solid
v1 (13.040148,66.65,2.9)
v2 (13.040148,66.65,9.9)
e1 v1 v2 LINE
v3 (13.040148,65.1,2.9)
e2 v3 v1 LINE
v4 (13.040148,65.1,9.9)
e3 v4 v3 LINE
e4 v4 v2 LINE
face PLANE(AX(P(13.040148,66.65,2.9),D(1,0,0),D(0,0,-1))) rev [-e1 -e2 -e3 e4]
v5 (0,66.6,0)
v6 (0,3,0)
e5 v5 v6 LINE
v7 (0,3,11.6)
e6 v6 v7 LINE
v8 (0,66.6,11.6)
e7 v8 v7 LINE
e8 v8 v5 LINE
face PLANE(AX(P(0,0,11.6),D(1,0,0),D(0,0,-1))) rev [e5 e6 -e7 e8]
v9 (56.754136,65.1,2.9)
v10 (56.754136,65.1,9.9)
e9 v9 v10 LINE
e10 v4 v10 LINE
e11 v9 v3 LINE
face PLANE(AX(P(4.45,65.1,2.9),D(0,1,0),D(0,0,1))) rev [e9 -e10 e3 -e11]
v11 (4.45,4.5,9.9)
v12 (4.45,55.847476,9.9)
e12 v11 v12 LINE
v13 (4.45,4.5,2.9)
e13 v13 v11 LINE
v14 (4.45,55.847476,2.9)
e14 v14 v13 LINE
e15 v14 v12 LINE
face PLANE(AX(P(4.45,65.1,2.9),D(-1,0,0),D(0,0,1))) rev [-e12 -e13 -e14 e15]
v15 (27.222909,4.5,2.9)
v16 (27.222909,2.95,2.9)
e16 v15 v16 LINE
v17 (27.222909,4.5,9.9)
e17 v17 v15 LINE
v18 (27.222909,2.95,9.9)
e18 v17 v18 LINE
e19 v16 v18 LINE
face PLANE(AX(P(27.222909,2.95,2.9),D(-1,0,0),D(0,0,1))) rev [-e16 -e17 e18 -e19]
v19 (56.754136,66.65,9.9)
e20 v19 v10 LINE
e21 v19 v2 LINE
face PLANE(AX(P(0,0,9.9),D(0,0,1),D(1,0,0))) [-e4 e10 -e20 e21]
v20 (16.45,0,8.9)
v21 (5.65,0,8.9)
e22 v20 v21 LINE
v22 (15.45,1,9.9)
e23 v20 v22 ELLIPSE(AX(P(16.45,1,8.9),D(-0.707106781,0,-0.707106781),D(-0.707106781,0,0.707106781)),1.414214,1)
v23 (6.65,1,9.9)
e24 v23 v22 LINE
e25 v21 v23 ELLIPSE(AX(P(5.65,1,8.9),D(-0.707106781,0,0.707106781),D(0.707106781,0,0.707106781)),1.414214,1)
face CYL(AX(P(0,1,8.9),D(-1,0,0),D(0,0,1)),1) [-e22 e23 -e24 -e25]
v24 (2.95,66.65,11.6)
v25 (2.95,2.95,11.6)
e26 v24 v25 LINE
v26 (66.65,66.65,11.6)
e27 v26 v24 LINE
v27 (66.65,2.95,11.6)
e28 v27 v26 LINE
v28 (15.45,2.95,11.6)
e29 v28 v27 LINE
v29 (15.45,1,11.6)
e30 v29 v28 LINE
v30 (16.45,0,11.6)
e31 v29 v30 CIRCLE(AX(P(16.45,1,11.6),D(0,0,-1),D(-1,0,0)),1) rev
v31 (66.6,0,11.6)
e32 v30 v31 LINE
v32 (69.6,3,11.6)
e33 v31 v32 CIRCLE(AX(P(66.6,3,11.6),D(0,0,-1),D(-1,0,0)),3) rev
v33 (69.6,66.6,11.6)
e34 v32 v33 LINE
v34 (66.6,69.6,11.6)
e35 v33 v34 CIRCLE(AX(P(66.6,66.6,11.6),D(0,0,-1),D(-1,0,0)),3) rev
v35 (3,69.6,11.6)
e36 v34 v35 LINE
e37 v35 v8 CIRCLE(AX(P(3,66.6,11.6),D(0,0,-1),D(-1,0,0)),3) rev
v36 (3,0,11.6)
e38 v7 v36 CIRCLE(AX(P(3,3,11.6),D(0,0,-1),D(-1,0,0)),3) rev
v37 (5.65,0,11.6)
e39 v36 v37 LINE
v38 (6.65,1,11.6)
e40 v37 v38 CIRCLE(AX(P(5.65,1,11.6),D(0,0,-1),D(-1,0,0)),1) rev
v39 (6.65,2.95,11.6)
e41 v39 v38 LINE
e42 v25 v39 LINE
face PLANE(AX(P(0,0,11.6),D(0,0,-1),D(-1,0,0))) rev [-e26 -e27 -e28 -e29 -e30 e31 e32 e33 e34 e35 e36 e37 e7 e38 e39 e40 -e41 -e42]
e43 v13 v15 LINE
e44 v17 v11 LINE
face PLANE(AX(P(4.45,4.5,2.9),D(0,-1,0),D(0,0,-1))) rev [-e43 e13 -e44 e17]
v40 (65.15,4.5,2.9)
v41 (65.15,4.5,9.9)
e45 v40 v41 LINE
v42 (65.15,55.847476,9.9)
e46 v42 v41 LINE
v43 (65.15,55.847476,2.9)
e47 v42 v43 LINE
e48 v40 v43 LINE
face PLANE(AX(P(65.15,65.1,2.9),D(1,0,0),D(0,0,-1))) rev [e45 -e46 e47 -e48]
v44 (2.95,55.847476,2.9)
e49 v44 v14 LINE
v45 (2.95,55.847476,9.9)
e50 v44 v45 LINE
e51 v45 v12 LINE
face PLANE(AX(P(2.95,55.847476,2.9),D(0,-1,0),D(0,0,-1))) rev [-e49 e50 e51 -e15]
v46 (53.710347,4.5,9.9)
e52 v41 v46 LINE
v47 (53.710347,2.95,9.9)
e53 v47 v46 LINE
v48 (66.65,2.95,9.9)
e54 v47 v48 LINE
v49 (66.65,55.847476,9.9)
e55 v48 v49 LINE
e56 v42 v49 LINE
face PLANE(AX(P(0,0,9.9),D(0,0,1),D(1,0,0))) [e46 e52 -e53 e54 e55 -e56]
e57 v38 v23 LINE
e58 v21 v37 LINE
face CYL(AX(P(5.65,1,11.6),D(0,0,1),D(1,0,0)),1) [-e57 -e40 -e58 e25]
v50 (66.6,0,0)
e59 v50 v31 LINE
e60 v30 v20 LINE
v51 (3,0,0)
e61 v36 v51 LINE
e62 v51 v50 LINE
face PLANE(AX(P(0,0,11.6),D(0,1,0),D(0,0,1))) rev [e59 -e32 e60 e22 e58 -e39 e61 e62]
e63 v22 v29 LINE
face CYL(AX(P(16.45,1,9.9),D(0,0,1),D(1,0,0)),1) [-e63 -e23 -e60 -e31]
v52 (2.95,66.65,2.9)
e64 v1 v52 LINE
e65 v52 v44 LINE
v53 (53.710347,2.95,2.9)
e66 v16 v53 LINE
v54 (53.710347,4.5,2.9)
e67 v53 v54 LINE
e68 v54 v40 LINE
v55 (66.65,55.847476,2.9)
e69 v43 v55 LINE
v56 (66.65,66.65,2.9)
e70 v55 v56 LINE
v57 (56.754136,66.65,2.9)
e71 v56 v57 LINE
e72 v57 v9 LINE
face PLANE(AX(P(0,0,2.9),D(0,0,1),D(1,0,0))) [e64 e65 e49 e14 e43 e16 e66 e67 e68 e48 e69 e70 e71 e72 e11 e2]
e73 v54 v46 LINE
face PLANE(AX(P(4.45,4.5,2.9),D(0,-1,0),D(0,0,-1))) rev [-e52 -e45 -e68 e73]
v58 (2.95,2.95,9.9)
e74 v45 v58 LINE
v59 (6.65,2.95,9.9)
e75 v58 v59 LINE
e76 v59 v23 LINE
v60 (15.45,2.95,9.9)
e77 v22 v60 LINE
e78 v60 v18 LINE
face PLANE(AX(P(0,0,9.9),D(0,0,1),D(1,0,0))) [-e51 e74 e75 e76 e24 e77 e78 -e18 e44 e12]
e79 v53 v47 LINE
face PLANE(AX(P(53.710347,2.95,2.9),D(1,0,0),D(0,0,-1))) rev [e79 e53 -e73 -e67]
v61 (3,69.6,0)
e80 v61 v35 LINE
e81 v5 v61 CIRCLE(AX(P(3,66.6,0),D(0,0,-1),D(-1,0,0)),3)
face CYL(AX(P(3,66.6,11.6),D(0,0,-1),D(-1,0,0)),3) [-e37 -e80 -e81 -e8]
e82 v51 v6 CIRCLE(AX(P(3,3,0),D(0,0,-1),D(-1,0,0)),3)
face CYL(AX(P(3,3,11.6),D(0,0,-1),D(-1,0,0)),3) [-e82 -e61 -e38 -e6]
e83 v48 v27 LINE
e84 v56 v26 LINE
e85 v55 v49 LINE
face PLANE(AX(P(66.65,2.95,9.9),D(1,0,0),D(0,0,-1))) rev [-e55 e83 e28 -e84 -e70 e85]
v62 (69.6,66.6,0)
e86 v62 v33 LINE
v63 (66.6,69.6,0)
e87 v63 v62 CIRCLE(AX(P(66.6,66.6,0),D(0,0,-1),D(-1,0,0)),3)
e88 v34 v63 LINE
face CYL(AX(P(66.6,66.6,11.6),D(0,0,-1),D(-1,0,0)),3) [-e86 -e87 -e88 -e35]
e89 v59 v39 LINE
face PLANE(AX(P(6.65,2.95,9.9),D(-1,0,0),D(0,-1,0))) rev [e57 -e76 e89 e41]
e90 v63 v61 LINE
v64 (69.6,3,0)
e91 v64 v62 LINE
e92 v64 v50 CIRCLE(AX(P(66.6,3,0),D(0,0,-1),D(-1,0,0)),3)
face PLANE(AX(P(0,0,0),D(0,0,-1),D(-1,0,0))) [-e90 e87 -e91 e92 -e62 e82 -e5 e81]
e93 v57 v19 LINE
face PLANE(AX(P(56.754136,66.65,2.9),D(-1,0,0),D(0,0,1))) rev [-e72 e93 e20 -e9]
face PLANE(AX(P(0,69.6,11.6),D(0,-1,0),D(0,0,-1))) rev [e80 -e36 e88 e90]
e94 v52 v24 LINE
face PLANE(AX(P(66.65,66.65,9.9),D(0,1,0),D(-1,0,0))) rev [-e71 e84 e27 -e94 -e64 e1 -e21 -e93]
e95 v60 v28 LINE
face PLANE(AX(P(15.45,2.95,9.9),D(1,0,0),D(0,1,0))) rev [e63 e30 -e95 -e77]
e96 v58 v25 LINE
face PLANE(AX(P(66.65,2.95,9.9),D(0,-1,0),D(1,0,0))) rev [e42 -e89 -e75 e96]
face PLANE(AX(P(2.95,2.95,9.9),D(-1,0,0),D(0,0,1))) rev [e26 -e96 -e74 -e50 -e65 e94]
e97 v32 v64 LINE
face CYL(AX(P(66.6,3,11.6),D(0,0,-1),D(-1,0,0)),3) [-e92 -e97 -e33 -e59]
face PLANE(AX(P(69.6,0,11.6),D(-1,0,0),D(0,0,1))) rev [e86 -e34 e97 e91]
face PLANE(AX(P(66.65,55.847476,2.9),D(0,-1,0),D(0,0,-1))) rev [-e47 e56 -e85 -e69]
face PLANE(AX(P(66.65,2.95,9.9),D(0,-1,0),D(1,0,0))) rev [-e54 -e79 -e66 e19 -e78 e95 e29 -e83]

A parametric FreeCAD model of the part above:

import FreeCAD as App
import Part
import Sketcher


def edges_at(feature, points):
    """Names of the edges that pass closest to the given points."""
    edges = feature.Shape.Edges
    near = lambda p: min(range(len(edges)), key=lambda i: edges[i].distToShape(Part.Vertex(*p))[0])
    return sorted({f"Edge{near(p) + 1}" for p in points})


def add_polygon(sketch, points):
    """Adds a closed chain of lines whose ends are joined by coincident constraints."""
    first, n = sketch.GeometryCount, len(points)
    for a, b in zip(points, points[1:] + points[:1]):
        sketch.addGeometry(Part.LineSegment(App.Vector(*a, 0), App.Vector(*b, 0)), False)
    for i in range(n):
        sketch.addConstraint(Sketcher.Constraint("Coincident", first + i, 2, first + (i + 1) % n, 1))

doc = App.newDocument("Part")
body = doc.addObject("PartDesign::Body", "Body")

# Sketch on XY plane
sketch1 = body.newObject("Sketcher::SketchObject", "Sketch")
sketch1.AttachmentSupport = (doc.getObject("XY_Plane"), [""])
sketch1.MapMode = "FlatFace"
add_polygon(sketch1, [(0, 70), (0, 0), (70, 0), (70, 70)])  # lines 0-3
sketch1.addConstraint([
    Sketcher.Constraint("Vertical", 0),
    Sketcher.Constraint("Horizontal", 1),
    Sketcher.Constraint("Vertical", 2),
    Sketcher.Constraint("Horizontal", 3),
    Sketcher.Constraint("Coincident", 0, 2, -1, 1),
    Sketcher.Constraint("Equal", 3, 0),
    Sketcher.Constraint("DistanceX", 1, 1, 1, 2, 69.6),
])
pad1 = body.newObject("PartDesign::Pad", "Pad")
pad1.Profile = sketch1
pad1.Length = 11.6

# Sketch on XY plane
sketch2 = body.newObject("Sketcher::SketchObject", "Sketch001")
sketch2.AttachmentSupport = (doc.getObject("XY_Plane"), [""])
sketch2.MapMode = "FlatFace"
sketch2.AttachmentOffset = App.Placement(App.Vector(0, 0, 11.6), App.Rotation())
add_polygon(sketch2, [(4, 65), (4, 4), (65, 4), (65, 65)])  # lines 0-3
sketch2.addConstraint([
    Sketcher.Constraint("Vertical", 0),
    Sketcher.Constraint("Horizontal", 1),
    Sketcher.Constraint("Vertical", 2),
    Sketcher.Constraint("Horizontal", 3),
    Sketcher.Constraint("DistanceX", 1, 1, 1, 2, 60.7),
    Sketcher.Constraint("DistanceY", 0, 2, 0, 1, 60.6),
    Sketcher.Constraint("DistanceY", -1, 1, 0, 2, 4.5),
    Sketcher.Constraint("DistanceX", -1, 1, 0, 2, 4.45),
])
pocket1 = body.newObject("PartDesign::Pocket", "Pocket")
pocket1.Profile = sketch2
pocket1.Length = 8.7

# Sketch on XY plane
sketch3 = body.newObject("Sketcher::SketchObject", "Sketch002")
sketch3.AttachmentSupport = (doc.getObject("XY_Plane"), [""])
sketch3.MapMode = "FlatFace"
sketch3.AttachmentOffset = App.Placement(App.Vector(0, 0, 11.6), App.Rotation())
add_polygon(sketch3, [(3, 67), (3, 3), (67, 3), (67, 67)])  # lines 0-3
sketch3.addConstraint([
    Sketcher.Constraint("Vertical", 0),
    Sketcher.Constraint("Horizontal", 1),
    Sketcher.Constraint("Vertical", 2),
    Sketcher.Constraint("Horizontal", 3),
    Sketcher.Constraint("Equal", 3, 0),
    Sketcher.Constraint("DistanceX", 1, 1, 1, 2, 63.7),
    Sketcher.Constraint("DistanceX", -1, 1, 0, 2, 2.95),
    Sketcher.Constraint("DistanceY", -1, 1, 0, 2, 2.95),
])
pocket2 = body.newObject("PartDesign::Pocket", "Pocket001")
pocket2.Profile = sketch3
pocket2.Length = 1.7

# Sketch on XY plane
sketch4 = body.newObject("Sketcher::SketchObject", "Sketch003")
sketch4.AttachmentSupport = (doc.getObject("XY_Plane"), [""])
sketch4.MapMode = "FlatFace"
sketch4.AttachmentOffset = App.Placement(App.Vector(0, 0, 11.6), App.Rotation())
add_polygon(sketch4, [(6.7, 3), (6.7, 0), (15.4, 0), (15.4, 3)])  # lines 0-3
sketch4.addConstraint([
    Sketcher.Constraint("Vertical", 0),
    Sketcher.Constraint("Horizontal", 1),
    Sketcher.Constraint("Vertical", 2),
    Sketcher.Constraint("Horizontal", 3),
    Sketcher.Constraint("PointOnObject", 0, 2, -1),
    Sketcher.Constraint("DistanceX", 1, 1, 1, 2, 8.8),
    Sketcher.Constraint("DistanceY", 0, 2, 0, 1, 2.95),
    Sketcher.Constraint("DistanceX", -1, 1, 0, 2, 6.65),
])
pocket3 = body.newObject("PartDesign::Pocket", "Pocket002")
pocket3.Profile = sketch4
pocket3.Length = 1.7

# Sketch on XY plane
sketch5 = body.newObject("Sketcher::SketchObject", "Sketch004")
sketch5.AttachmentSupport = (doc.getObject("XY_Plane"), [""])
sketch5.MapMode = "FlatFace"
sketch5.AttachmentOffset = App.Placement(App.Vector(0, 0, 9.9), App.Rotation())
add_polygon(sketch5, [(3, 66.7), (3, 55.8), (13, 55.8), (13, 66.7)])  # lines 0-3
add_polygon(sketch5, [(27.2, 6.6), (27.2, 3), (53.7, 3), (53.7, 6.6)])  # lines 4-7
add_polygon(sketch5, [(56.8, 66.7), (56.8, 55.8), (66.7, 55.8), (66.7, 66.7)])  # lines 8-11
sketch5.addConstraint([
    Sketcher.Constraint("Vertical", 0),
    Sketcher.Constraint("Horizontal", 1),
    Sketcher.Constraint("Vertical", 2),
    Sketcher.Constraint("Horizontal", 3),
    Sketcher.Constraint("Vertical", 4),
    Sketcher.Constraint("Horizontal", 5),
    Sketcher.Constraint("Vertical", 6),
    Sketcher.Constraint("Horizontal", 7),
    Sketcher.Constraint("Vertical", 8),
    Sketcher.Constraint("Horizontal", 9),
    Sketcher.Constraint("Vertical", 10),
    Sketcher.Constraint("Horizontal", 11),
    Sketcher.Constraint("Horizontal", 1, 2, 8, 2),
    Sketcher.Constraint("Horizontal", 3, 2, 10, 2),
    Sketcher.Constraint("DistanceY", 4, 2, 2, 2, 63.7),
    Sketcher.Constraint("DistanceX", -1, 1, 0, 2, 2.95),
    Sketcher.Constraint("DistanceY", -1, 1, 2, 2, 66.65),
    Sketcher.Constraint("DistanceX", -1, 1, 9, 2, 66.65),
    Sketcher.Constraint("DistanceX", 1, 1, 1, 2, 10.090148),
    Sketcher.Constraint("DistanceX", 5, 1, 5, 2, 26.487438),
    Sketcher.Constraint("DistanceX", 1, 2, 5, 2, 40.670199),
    Sketcher.Constraint("DistanceX", 9, 1, 9, 2, 9.895864),
    Sketcher.Constraint("DistanceY", 0, 2, 0, 1, 10.802525),
    Sketcher.Constraint("DistanceY", 4, 2, 4, 1, 3.614002),
])
pocket4 = body.newObject("PartDesign::Pocket", "Pocket003")
pocket4.Profile = sketch5
pocket4.Length = 7
doc.recompute()

fillet = body.newObject("PartDesign::Fillet", "Fillet")
fillet.Base = (pocket4, edges_at(pocket4, [
    (0, 69.6, 5.8),
    (69.6, 69.6, 5.8),
    (69.6, 0, 5.8),
    (0, 0, 5.8),
]))
fillet.Radius = 3
doc.recompute()

fillet2 = body.newObject("PartDesign::Fillet", "Fillet001")
fillet2.Base = (fillet, edges_at(fillet, [(11.05, 0, 9.9), (15.45, 0, 10.75), (6.65, 0, 10.75)]))
fillet2.Radius = 1

doc.recompute()
